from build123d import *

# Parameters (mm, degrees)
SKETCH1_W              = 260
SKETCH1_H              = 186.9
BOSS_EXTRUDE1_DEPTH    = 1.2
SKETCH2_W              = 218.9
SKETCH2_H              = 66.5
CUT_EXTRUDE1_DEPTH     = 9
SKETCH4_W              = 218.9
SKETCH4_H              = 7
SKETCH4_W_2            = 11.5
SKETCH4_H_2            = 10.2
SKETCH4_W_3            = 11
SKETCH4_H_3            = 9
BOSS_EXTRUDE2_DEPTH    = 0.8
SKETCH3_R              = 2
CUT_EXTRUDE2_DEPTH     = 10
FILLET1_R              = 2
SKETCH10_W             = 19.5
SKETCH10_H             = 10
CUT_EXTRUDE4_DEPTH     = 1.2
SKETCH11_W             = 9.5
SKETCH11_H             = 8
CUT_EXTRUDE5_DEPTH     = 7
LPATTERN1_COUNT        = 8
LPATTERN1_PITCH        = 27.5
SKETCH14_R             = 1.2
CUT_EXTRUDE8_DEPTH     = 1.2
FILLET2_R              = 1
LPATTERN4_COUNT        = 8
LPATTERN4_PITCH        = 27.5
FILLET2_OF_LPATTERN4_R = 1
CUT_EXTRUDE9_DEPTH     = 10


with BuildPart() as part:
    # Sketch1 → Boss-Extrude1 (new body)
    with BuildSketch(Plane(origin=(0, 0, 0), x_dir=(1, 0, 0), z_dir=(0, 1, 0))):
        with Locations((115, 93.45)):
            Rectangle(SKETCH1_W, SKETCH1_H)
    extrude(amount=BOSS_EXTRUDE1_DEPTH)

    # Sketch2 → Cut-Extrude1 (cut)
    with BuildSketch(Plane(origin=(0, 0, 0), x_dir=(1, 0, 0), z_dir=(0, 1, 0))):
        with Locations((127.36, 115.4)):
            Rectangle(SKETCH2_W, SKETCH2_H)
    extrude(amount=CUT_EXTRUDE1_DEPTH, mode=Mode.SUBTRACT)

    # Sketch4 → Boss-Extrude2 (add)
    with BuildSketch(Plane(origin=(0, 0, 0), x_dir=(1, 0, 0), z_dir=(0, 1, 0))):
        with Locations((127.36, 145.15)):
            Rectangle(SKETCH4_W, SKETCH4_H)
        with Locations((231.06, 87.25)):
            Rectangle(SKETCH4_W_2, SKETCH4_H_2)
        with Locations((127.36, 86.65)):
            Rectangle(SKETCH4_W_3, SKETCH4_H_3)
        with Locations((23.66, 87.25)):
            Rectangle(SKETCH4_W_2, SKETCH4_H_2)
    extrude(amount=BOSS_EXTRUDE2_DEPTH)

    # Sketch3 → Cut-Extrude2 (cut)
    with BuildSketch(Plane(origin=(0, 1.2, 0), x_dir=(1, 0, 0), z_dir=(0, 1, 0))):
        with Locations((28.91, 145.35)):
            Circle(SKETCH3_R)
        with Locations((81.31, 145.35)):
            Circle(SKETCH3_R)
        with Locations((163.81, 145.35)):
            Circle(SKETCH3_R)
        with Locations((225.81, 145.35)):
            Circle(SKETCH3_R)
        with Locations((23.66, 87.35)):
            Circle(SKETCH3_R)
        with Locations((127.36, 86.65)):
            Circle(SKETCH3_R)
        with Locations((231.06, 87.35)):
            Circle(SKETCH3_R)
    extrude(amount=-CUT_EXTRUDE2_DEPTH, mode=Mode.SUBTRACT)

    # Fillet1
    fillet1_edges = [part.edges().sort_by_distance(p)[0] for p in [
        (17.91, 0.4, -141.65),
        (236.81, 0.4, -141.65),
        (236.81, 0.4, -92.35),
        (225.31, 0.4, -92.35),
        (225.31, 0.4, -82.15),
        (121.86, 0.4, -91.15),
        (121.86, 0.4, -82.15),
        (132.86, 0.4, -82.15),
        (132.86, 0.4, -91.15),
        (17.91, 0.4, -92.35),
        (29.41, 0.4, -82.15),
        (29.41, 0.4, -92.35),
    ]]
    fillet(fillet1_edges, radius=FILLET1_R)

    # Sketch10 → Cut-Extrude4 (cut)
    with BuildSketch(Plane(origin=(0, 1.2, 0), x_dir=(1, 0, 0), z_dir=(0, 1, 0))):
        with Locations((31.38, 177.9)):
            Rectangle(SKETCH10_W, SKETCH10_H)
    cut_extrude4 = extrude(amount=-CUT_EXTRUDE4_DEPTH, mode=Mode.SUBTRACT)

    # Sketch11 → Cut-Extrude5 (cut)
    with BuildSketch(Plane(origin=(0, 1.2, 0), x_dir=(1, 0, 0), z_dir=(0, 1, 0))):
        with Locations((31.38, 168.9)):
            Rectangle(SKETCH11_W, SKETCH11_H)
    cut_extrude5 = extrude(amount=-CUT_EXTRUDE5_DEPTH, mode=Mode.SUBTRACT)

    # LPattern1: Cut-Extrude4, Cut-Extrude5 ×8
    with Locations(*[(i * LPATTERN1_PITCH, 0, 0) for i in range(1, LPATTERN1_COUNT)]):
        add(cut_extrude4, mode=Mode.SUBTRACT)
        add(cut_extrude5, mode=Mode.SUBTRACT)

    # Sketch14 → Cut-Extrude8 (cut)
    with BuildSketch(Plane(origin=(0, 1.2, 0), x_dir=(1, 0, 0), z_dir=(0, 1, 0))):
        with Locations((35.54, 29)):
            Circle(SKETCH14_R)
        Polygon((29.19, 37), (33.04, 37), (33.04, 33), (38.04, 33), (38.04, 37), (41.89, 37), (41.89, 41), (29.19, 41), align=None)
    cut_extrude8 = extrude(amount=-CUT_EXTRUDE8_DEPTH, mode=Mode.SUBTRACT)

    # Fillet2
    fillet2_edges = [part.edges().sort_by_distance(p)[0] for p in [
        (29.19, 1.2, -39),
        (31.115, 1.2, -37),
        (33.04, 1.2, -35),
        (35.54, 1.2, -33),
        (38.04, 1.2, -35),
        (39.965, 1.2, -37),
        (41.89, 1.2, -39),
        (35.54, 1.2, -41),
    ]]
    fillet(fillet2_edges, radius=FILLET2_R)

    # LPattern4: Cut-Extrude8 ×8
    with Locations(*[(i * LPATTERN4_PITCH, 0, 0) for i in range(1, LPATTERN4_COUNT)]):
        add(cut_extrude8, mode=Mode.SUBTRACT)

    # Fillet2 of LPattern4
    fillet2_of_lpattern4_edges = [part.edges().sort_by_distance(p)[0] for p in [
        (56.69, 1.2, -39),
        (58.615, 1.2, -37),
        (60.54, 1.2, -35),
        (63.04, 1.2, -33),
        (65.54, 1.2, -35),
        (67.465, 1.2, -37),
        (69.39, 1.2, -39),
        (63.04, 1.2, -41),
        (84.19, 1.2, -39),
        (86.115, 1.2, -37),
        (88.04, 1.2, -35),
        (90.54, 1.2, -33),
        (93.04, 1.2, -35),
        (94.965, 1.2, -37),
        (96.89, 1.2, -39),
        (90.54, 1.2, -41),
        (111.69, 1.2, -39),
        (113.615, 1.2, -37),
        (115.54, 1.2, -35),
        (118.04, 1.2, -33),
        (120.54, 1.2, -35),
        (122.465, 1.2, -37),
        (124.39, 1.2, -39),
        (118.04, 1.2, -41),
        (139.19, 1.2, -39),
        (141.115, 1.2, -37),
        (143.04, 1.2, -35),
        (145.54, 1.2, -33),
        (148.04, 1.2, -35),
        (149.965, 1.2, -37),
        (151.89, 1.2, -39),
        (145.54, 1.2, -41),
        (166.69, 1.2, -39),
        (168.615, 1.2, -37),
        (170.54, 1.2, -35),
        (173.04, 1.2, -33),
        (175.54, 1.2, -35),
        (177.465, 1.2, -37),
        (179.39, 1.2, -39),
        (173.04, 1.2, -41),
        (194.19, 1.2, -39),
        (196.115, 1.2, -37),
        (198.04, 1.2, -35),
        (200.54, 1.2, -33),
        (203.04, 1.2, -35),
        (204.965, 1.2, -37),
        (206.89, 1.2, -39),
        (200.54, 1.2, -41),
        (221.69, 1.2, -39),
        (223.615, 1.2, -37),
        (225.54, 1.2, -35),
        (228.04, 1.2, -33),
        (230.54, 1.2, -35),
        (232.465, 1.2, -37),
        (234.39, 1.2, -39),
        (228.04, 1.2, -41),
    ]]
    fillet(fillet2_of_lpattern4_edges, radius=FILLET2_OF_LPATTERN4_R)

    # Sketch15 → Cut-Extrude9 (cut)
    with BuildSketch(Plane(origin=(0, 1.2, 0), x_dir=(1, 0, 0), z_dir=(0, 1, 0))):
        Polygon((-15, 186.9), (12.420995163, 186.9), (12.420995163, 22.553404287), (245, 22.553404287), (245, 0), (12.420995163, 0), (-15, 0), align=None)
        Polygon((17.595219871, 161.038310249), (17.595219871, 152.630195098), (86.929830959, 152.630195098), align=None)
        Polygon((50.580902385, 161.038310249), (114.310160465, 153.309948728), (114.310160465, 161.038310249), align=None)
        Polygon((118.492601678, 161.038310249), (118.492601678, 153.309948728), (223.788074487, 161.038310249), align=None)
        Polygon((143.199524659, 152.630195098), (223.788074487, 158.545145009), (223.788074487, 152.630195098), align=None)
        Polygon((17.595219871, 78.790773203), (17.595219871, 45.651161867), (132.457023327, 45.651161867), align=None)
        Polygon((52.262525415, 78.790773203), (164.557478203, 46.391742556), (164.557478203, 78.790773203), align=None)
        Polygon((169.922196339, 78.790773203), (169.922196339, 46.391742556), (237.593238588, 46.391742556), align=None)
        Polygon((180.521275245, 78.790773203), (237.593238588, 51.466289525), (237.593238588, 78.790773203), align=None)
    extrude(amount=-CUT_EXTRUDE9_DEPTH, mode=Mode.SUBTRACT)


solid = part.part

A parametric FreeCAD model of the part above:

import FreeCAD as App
import Part
import Sketcher

V = App.Vector
Q = App.Units.Quantity


def edges_at(feature, points):
    """Names of the edges that pass closest to the given points."""
    edges = feature.Shape.Edges
    near = lambda p: min(range(len(edges)), key=lambda i: edges[i].distToShape(Part.Vertex(*p))[0])
    return sorted({f"Edge{near(p) + 1}" for p in points})

doc = App.newDocument("Part")
body = doc.addObject("PartDesign::Body", "Body")

# Sketch on XZ plane
sketch1 = body.newObject("Sketcher::SketchObject", "Sketch")
sketch1.AttachmentSupport = (doc.getObject("XZ_Plane"), [""])
sketch1.MapMode = "FlatFace"
sketch1.addGeometry(Part.LineSegment(V(-15, -186.9, 0), V(-15, 0, 0)), False)
sketch1.addGeometry(Part.LineSegment(V(-15, 0, 0), V(245, 0, 0)), False)
sketch1.addGeometry(Part.LineSegment(V(245, 0, 0), V(245, -186.9, 0)), False)
sketch1.addGeometry(Part.LineSegment(V(245, -186.9, 0), V(-15, -186.9, 0)), False)
sketch1.addConstraint(Sketcher.Constraint("Coincident", 0, 2, 1, 1))
sketch1.addConstraint(Sketcher.Constraint("Coincident", 1, 2, 2, 1))
sketch1.addConstraint(Sketcher.Constraint("Coincident", 2, 2, 3, 1))
sketch1.addConstraint(Sketcher.Constraint("Coincident", 3, 2, 0, 1))
sketch1.addConstraint(Sketcher.Constraint("Vertical", 0))
sketch1.addConstraint(Sketcher.Constraint("Horizontal", 1))
sketch1.addConstraint(Sketcher.Constraint("Vertical", 2))
sketch1.addConstraint(Sketcher.Constraint("Horizontal", 3))
sketch1.addConstraint(Sketcher.Constraint("PointOnObject", 0, 2, -1))
sketch1.addConstraint(Sketcher.Constraint("DistanceX", 1, 1, 1, 2, Q("260 mm")))
sketch1.addConstraint(Sketcher.Constraint("DistanceY", 0, 1, 0, 2, Q("186.9 mm")))
sketch1.addConstraint(Sketcher.Constraint("DistanceX", 0, 2, -1, 1, Q("15 mm")))
pad1 = body.newObject("PartDesign::Pad", "Pad")
pad1.Profile = sketch1
pad1.Length = 1.2
pad1.Reversed = True

# Sketch on XZ plane
sketch2 = body.newObject("Sketcher::SketchObject", "Sketch001")
sketch2.AttachmentSupport = (doc.getObject("XZ_Plane"), [""])
sketch2.MapMode = "FlatFace"
sketch2.addGeometry(Part.LineSegment(V(17.91, -148.65, 0), V(17.91, -82.15, 0)), False)
sketch2.addGeometry(Part.LineSegment(V(17.91, -82.15, 0), V(236.81, -82.15, 0)), False)
sketch2.addGeometry(Part.LineSegment(V(236.81, -82.15, 0), V(236.81, -148.65, 0)), False)
sketch2.addGeometry(Part.LineSegment(V(236.81, -148.65, 0), V(17.91, -148.65, 0)), False)
sketch2.addConstraint(Sketcher.Constraint("Coincident", 0, 2, 1, 1))
sketch2.addConstraint(Sketcher.Constraint("Coincident", 1, 2, 2, 1))
sketch2.addConstraint(Sketcher.Constraint("Coincident", 2, 2, 3, 1))
sketch2.addConstraint(Sketcher.Constraint("Coincident", 3, 2, 0, 1))
sketch2.addConstraint(Sketcher.Constraint("Vertical", 0))
sketch2.addConstraint(Sketcher.Constraint("Horizontal", 1))
sketch2.addConstraint(Sketcher.Constraint("Vertical", 2))
sketch2.addConstraint(Sketcher.Constraint("Horizontal", 3))
sketch2.addConstraint(Sketcher.Constraint("DistanceX", 1, 1, 1, 2, Q("218.9 mm")))
sketch2.addConstraint(Sketcher.Constraint("DistanceY", 0, 1, 0, 2, Q("66.5 mm")))
sketch2.addConstraint(Sketcher.Constraint("DistanceX", -1, 1, 0, 2, Q("17.91 mm")))
sketch2.addConstraint(Sketcher.Constraint("DistanceY", 0, 2, -1, 1, Q("82.15 mm")))
pocket1 = body.newObject("PartDesign::Pocket", "Pocket")
pocket1.Profile = sketch2
pocket1.Length = 9

# Sketch on XZ plane
sketch3 = body.newObject("Sketcher::SketchObject", "Sketch002")
sketch3.AttachmentSupport = (doc.getObject("XZ_Plane"), [""])
sketch3.MapMode = "FlatFace"
sketch3.addGeometry(Part.LineSegment(V(17.91, -148.65, 0), V(17.91, -141.65, 0)), False)
sketch3.addGeometry(Part.LineSegment(V(17.91, -141.65, 0), V(236.81, -141.65, 0)), False)
sketch3.addGeometry(Part.LineSegment(V(236.81, -141.65, 0), V(236.81, -148.65, 0)), False)
sketch3.addGeometry(Part.LineSegment(V(236.81, -148.65, 0), V(17.91, -148.65, 0)), False)
sketch3.addGeometry(Part.LineSegment(V(225.31, -92.35, 0), V(225.31, -82.15, 0)), False)
sketch3.addGeometry(Part.LineSegment(V(225.31, -82.15, 0), V(236.81, -82.15, 0)), False)
sketch3.addGeometry(Part.LineSegment(V(236.81, -82.15, 0), V(236.81, -92.35, 0)), False)
sketch3.addGeometry(Part.LineSegment(V(236.81, -92.35, 0), V(225.31, -92.35, 0)), False)
sketch3.addGeometry(Part.LineSegment(V(121.86, -91.15, 0), V(121.86, -82.15, 0)), False)
sketch3.addGeometry(Part.LineSegment(V(121.86, -82.15, 0), V(132.86, -82.15, 0)), False)
sketch3.addGeometry(Part.LineSegment(V(132.86, -82.15, 0), V(132.86, -91.15, 0)), False)
sketch3.addGeometry(Part.LineSegment(V(132.86, -91.15, 0), V(121.86, -91.15, 0)), False)
sketch3.addGeometry(Part.LineSegment(V(17.91, -92.35, 0), V(17.91, -82.15, 0)), False)
sketch3.addGeometry(Part.LineSegment(V(17.91, -82.15, 0), V(29.41, -82.15, 0)), False)
sketch3.addGeometry(Part.LineSegment(V(29.41, -82.15, 0), V(29.41, -92.35, 0)), False)
sketch3.addGeometry(Part.LineSegment(V(29.41, -92.35, 0), V(17.91, -92.35, 0)), False)
sketch3.addConstraint(Sketcher.Constraint("Coincident", 0, 2, 1, 1))
sketch3.addConstraint(Sketcher.Constraint("Coincident", 1, 2, 2, 1))
sketch3.addConstraint(Sketcher.Constraint("Coincident", 2, 2, 3, 1))
sketch3.addConstraint(Sketcher.Constraint("Coincident", 3, 2, 0, 1))
sketch3.addConstraint(Sketcher.Constraint("Coincident", 4, 2, 5, 1))
sketch3.addConstraint(Sketcher.Constraint("Coincident", 5, 2, 6, 1))
sketch3.addConstraint(Sketcher.Constraint("Coincident", 6, 2, 7, 1))
sketch3.addConstraint(Sketcher.Constraint("Coincident", 7, 2, 4, 1))
sketch3.addConstraint(Sketcher.Constraint("Coincident", 8, 2, 9, 1))
sketch3.addConstraint(Sketcher.Constraint("Coincident", 9, 2, 10, 1))
sketch3.addConstraint(Sketcher.Constraint("Coincident", 10, 2, 11, 1))
sketch3.addConstraint(Sketcher.Constraint("Coincident", 11, 2, 8, 1))
sketch3.addConstraint(Sketcher.Constraint("Coincident", 12, 2, 13, 1))
sketch3.addConstraint(Sketcher.Constraint("Coincident", 13, 2, 14, 1))
sketch3.addConstraint(Sketcher.Constraint("Coincident", 14, 2, 15, 1))
sketch3.addConstraint(Sketcher.Constraint("Coincident", 15, 2, 12, 1))
sketch3.addConstraint(Sketcher.Constraint("Vertical", 0))
sketch3.addConstraint(Sketcher.Constraint("Horizontal", 1))
sketch3.addConstraint(Sketcher.Constraint("Vertical", 2))
sketch3.addConstraint(Sketcher.Constraint("Horizontal", 3))
sketch3.addConstraint(Sketcher.Constraint("Vertical", 4))
sketch3.addConstraint(Sketcher.Constraint("Horizontal", 5))
sketch3.addConstraint(Sketcher.Constraint("Vertical", 6))
sketch3.addConstraint(Sketcher.Constraint("Horizontal", 7))
sketch3.addConstraint(Sketcher.Constraint("Vertical", 8))
sketch3.addConstraint(Sketcher.Constraint("Horizontal", 9))
sketch3.addConstraint(Sketcher.Constraint("Vertical", 10))
sketch3.addConstraint(Sketcher.Constraint("Horizontal", 11))
sketch3.addConstraint(Sketcher.Constraint("Vertical", 12))
sketch3.addConstraint(Sketcher.Constraint("Horizontal", 13))
sketch3.addConstraint(Sketcher.Constraint("Vertical", 14))
sketch3.addConstraint(Sketcher.Constraint("Horizontal", 15))
sketch3.addConstraint(Sketcher.Constraint("Horizontal", 5, 2, 8, 2))
sketch3.addConstraint(Sketcher.Constraint("Horizontal", 9, 2, 12, 2))
sketch3.addConstraint(Sketcher.Constraint("Horizontal", 7, 2, 14, 2))
sketch3.addConstraint(Sketcher.Constraint("Vertical", 2, 2, 5, 2))
sketch3.addConstraint(Sketcher.Constraint("Vertical", 3, 2, 12, 2))
sketch3.addConstraint(Sketcher.Constraint("Equal", 7, 13))
sketch3.addConstraint(Sketcher.Constraint("DistanceX", 9, 1, 9, 2, Q("11 mm")))
sketch3.addConstraint(Sketcher.Constraint("DistanceY", 0, 1, 0, 2, Q("7 mm")))
sketch3.addConstraint(Sketcher.Constraint("DistanceY", 8, 1, 8, 2, Q("9 mm")))
sketch3.addConstraint(Sketcher.Constraint("DistanceX", 1, 1, 1, 2, Q("218.9 mm")))
sketch3.addConstraint(Sketcher.Constraint("DistanceX", 5, 1, 5, 2, Q("11.5 mm")))
sketch3.addConstraint(Sketcher.Constraint("DistanceY", 4, 1, 4, 2, Q("10.2 mm")))
sketch3.addConstraint(Sketcher.Constraint("DistanceY", 1, 2, 4, 2, Q("59.5 mm")))
sketch3.addConstraint(Sketcher.Constraint("DistanceX", -1, 1, 0, 2, Q("17.91 mm")))
sketch3.addConstraint(Sketcher.Constraint("DistanceY", 0, 2, -1, 1, Q("141.65 mm")))
sketch3.addConstraint(Sketcher.Constraint("DistanceX", -1, 1, 8, 2, Q("121.86 mm")))
pad2 = body.newObject("PartDesign::Pad", "Pad001")
pad2.Profile = sketch3
pad2.Length = 0.8
pad2.Reversed = True

# Sketch on XZ plane
sketch4 = body.newObject("Sketcher::SketchObject", "Sketch003")
sketch4.AttachmentSupport = (doc.getObject("XZ_Plane"), [""])
sketch4.MapMode = "FlatFace"
sketch4.AttachmentOffset = App.Placement(V(0, 0, -1.2), App.Rotation())
sketch4.addGeometry(Part.Circle(V(28.91, -145.35, 0), V(0, 0, 1), 2), False)
sketch4.addGeometry(Part.Circle(V(81.31, -145.35, 0), V(0, 0, 1), 2), False)
sketch4.addGeometry(Part.Circle(V(163.81, -145.35, 0), V(0, 0, 1), 2), False)
sketch4.addGeometry(Part.Circle(V(225.81, -145.35, 0), V(0, 0, 1), 2), False)
sketch4.addGeometry(Part.Circle(V(23.66, -87.35, 0), V(0, 0, 1), 2), False)
sketch4.addGeometry(Part.Circle(V(127.36, -86.65, 0), V(0, 0, 1), 2), False)
sketch4.addGeometry(Part.Circle(V(231.06, -87.35, 0), V(0, 0, 1), 2), False)
sketch4.addConstraint(Sketcher.Constraint("Equal", 0, 1))
sketch4.addConstraint(Sketcher.Constraint("Equal", 1, 2))
sketch4.addConstraint(Sketcher.Constraint("Equal", 2, 3))
sketch4.addConstraint(Sketcher.Constraint("Equal", 3, 4))
sketch4.addConstraint(Sketcher.Constraint("Equal", 4, 5))
sketch4.addConstraint(Sketcher.Constraint("Equal", 5, 6))
sketch4.addConstraint(Sketcher.Constraint("Horizontal", 0, 3, 1, 3))
sketch4.addConstraint(Sketcher.Constraint("Horizontal", 1, 3, 2, 3))
sketch4.addConstraint(Sketcher.Constraint("Horizontal", 2, 3, 3, 3))
sketch4.addConstraint(Sketcher.Constraint("Horizontal", 4, 3, 6, 3))
sketch4.addConstraint(Sketcher.Constraint("Diameter", 0, Q("4 mm")))
sketch4.addConstraint(Sketcher.Constraint("DistanceX", 2, 3, 3, 3, Q("62 mm")))
sketch4.addConstraint(Sketcher.Constraint("DistanceY", 0, 3, 4, 3, Q("58 mm")))
sketch4.addConstraint(Sketcher.Constraint("DistanceX", 0, 3, 1, 3, Q("52.4 mm")))
sketch4.addConstraint(Sketcher.Constraint("DistanceX", 1, 3, 2, 3, Q("82.5 mm")))
sketch4.addConstraint(Sketcher.Constraint("DistanceY", 2, 3, 5, 3, Q("58.7 mm")))
sketch4.addConstraint(Sketcher.Constraint("DistanceX", 4, 3, 5, 3, Q("103.7 mm")))
sketch4.addConstraint(Sketcher.Constraint("DistanceX", 5, 3, 6, 3, Q("103.7 mm")))
sketch4.addConstraint(Sketcher.Constraint("DistanceX", -1, 1, 0, 3, Q("28.91 mm")))
sketch4.addConstraint(Sketcher.Constraint("DistanceY", 0, 3, -1, 1, Q("145.35 mm")))
sketch4.addConstraint(Sketcher.Constraint("DistanceX", -1, 1, 4, 3, Q("23.66 mm")))
pocket2 = body.newObject("PartDesign::Pocket", "Pocket001")
pocket2.Profile = sketch4
pocket2.Length = 10
pocket2.Reversed = True
doc.recompute()

fillet = body.newObject("PartDesign::Fillet", "Fillet")
fillet.Base = (pocket2, edges_at(pocket2, [
    (17.91, 0.4, -141.65),
    (236.81, 0.4, -141.65),
    (236.81, 0.4, -92.35),
    (225.31, 0.4, -92.35),
    (225.31, 0.4, -82.15),
    (121.86, 0.4, -91.15),
    (121.86, 0.4, -82.15),
    (132.86, 0.4, -82.15),
    (132.86, 0.4, -91.15),
    (17.91, 0.4, -92.35),
    (29.41, 0.4, -82.15),
    (29.41, 0.4, -92.35),
]))
fillet.Radius = 2

# Sketch on XZ plane
sketch5 = body.newObject("Sketcher::SketchObject", "Sketch004")
sketch5.AttachmentSupport = (doc.getObject("XZ_Plane"), [""])
sketch5.MapMode = "FlatFace"
sketch5.AttachmentOffset = App.Placement(V(0, 0, -1.2), App.Rotation())
sketch5.addGeometry(Part.LineSegment(V(21.63, -182.9, 0), V(21.63, -172.9, 0)), False)
sketch5.addGeometry(Part.LineSegment(V(21.63, -172.9, 0), V(41.13, -172.9, 0)), False)
sketch5.addGeometry(Part.LineSegment(V(41.13, -172.9, 0), V(41.13, -182.9, 0)), False)
sketch5.addGeometry(Part.LineSegment(V(41.13, -182.9, 0), V(21.63, -182.9, 0)), False)
sketch5.addConstraint(Sketcher.Constraint("Coincident", 0, 2, 1, 1))
sketch5.addConstraint(Sketcher.Constraint("Coincident", 1, 2, 2, 1))
sketch5.addConstraint(Sketcher.Constraint("Coincident", 2, 2, 3, 1))
sketch5.addConstraint(Sketcher.Constraint("Coincident", 3, 2, 0, 1))
sketch5.addConstraint(Sketcher.Constraint("Vertical", 0))
sketch5.addConstraint(Sketcher.Constraint("Horizontal", 1))
sketch5.addConstraint(Sketcher.Constraint("Vertical", 2))
sketch5.addConstraint(Sketcher.Constraint("Horizontal", 3))
sketch5.addConstraint(Sketcher.Constraint("DistanceY", 0, 1, 0, 2, Q("10 mm")))
sketch5.addConstraint(Sketcher.Constraint("DistanceX", 1, 1, 1, 2, Q("19.5 mm")))
sketch5.addConstraint(Sketcher.Constraint("DistanceY", 0, 2, -1, 1, Q("172.9 mm")))
sketch5.addConstraint(Sketcher.Constraint("DistanceX", -1, 1, 0, 2, Q("21.63 mm")))
pocket3 = body.newObject("PartDesign::Pocket", "Pocket002")
pocket3.Profile = sketch5
pocket3.Length = 1.2
pocket3.Reversed = True

# Sketch on XZ plane
sketch6 = body.newObject("Sketcher::SketchObject", "Sketch005")
sketch6.AttachmentSupport = (doc.getObject("XZ_Plane"), [""])
sketch6.MapMode = "FlatFace"
sketch6.AttachmentOffset = App.Placement(V(0, 0, -1.2), App.Rotation())
sketch6.addGeometry(Part.LineSegment(V(26.63, -172.9, 0), V(26.63, -164.9, 0)), False)
sketch6.addGeometry(Part.LineSegment(V(26.63, -164.9, 0), V(36.13, -164.9, 0)), False)
sketch6.addGeometry(Part.LineSegment(V(36.13, -164.9, 0), V(36.13, -172.9, 0)), False)
sketch6.addGeometry(Part.LineSegment(V(36.13, -172.9, 0), V(26.63, -172.9, 0)), False)
sketch6.addConstraint(Sketcher.Constraint("Coincident", 0, 2, 1, 1))
sketch6.addConstraint(Sketcher.Constraint("Coincident", 1, 2, 2, 1))
sketch6.addConstraint(Sketcher.Constraint("Coincident", 2, 2, 3, 1))
sketch6.addConstraint(Sketcher.Constraint("Coincident", 3, 2, 0, 1))
sketch6.addConstraint(Sketcher.Constraint("Vertical", 0))
sketch6.addConstraint(Sketcher.Constraint("Horizontal", 1))
sketch6.addConstraint(Sketcher.Constraint("Vertical", 2))
sketch6.addConstraint(Sketcher.Constraint("Horizontal", 3))
sketch6.addConstraint(Sketcher.Constraint("DistanceY", 0, 1, 0, 2, Q("8 mm")))
sketch6.addConstraint(Sketcher.Constraint("DistanceX", 1, 1, 1, 2, Q("9.5 mm")))
sketch6.addConstraint(Sketcher.Constraint("DistanceY", 0, 2, -1, 1, Q("164.9 mm")))
sketch6.addConstraint(Sketcher.Constraint("DistanceX", -1, 1, 0, 2, Q("26.63 mm")))
pocket4 = body.newObject("PartDesign::Pocket", "Pocket003")
pocket4.Profile = sketch6
pocket4.Length = 7
pocket4.Reversed = True
doc.recompute()

linearpattern = body.newObject("PartDesign::LinearPattern", "LinearPattern")
linearpattern.Originals = [pocket3, pocket4]
linearpattern.Direction = (doc.getObject("X_Axis"), [""])
linearpattern.Mode = "offset"
linearpattern.Offset = 27.5
linearpattern.Occurrences = 8
body.Tip = linearpattern

# Sketch on XZ plane
sketch7 = body.newObject("Sketcher::SketchObject", "Sketch006")
sketch7.AttachmentSupport = (doc.getObject("XZ_Plane"), [""])
sketch7.MapMode = "FlatFace"
sketch7.AttachmentOffset = App.Placement(V(0, 0, -1.2), App.Rotation())
sketch7.addGeometry(Part.Circle(V(35.54, -29, 0), V(0, 0, 1), 1.2), False)
sketch7.addGeometry(Part.LineSegment(V(29.19, -37, 0), V(33.04, -37, 0)), False)
sketch7.addGeometry(Part.LineSegment(V(33.04, -37, 0), V(33.04, -33, 0)), False)
sketch7.addGeometry(Part.LineSegment(V(33.04, -33, 0), V(38.04, -33, 0)), False)
sketch7.addGeometry(Part.LineSegment(V(38.04, -33, 0), V(38.04, -37, 0)), False)
sketch7.addGeometry(Part.LineSegment(V(38.04, -37, 0), V(41.89, -37, 0)), False)
sketch7.addGeometry(Part.LineSegment(V(41.89, -37, 0), V(41.89, -41, 0)), False)
sketch7.addGeometry(Part.LineSegment(V(41.89, -41, 0), V(29.19, -41, 0)), False)
sketch7.addGeometry(Part.LineSegment(V(29.19, -41, 0), V(29.19, -37, 0)), False)
sketch7.addConstraint(Sketcher.Constraint("Coincident", 1, 2, 2, 1))
sketch7.addConstraint(Sketcher.Constraint("Coincident", 2, 2, 3, 1))
sketch7.addConstraint(Sketcher.Constraint("Coincident", 3, 2, 4, 1))
sketch7.addConstraint(Sketcher.Constraint("Coincident", 4, 2, 5, 1))
sketch7.addConstraint(Sketcher.Constraint("Coincident", 5, 2, 6, 1))
sketch7.addConstraint(Sketcher.Constraint("Coincident", 6, 2, 7, 1))
sketch7.addConstraint(Sketcher.Constraint("Coincident", 7, 2, 8, 1))
sketch7.addConstraint(Sketcher.Constraint("Coincident", 8, 2, 1, 1))
sketch7.addConstraint(Sketcher.Constraint("Horizontal", 1))
sketch7.addConstraint(Sketcher.Constraint("Vertical", 2))
sketch7.addConstraint(Sketcher.Constraint("Horizontal", 3))
sketch7.addConstraint(Sketcher.Constraint("Vertical", 4))
sketch7.addConstraint(Sketcher.Constraint("Horizontal", 5))
sketch7.addConstraint(Sketcher.Constraint("Vertical", 6))
sketch7.addConstraint(Sketcher.Constraint("Horizontal", 7))
sketch7.addConstraint(Sketcher.Constraint("Vertical", 8))
sketch7.addConstraint(Sketcher.Constraint("Horizontal", 1, 2, 4, 2))
sketch7.addConstraint(Sketcher.Constraint("Equal", 1, 5))
sketch7.addConstraint(Sketcher.Constraint("Equal", 4, 6))
sketch7.addConstraint(Sketcher.Constraint("Diameter", 0, Q("2.4 mm")))
sketch7.addConstraint(Sketcher.Constraint("DistanceX", 3, 1, 3, 2, Q("5 mm")))
sketch7.addConstraint(Sketcher.Constraint("DistanceY", 2, 1, 2, 2, Q("4 mm")))
sketch7.addConstraint(Sketcher.Constraint("DistanceX", 7, 2, 7, 1, Q("12.7 mm")))
sketch7.addConstraint(Sketcher.Constraint("DistanceY", 0, 3, -1, 1, Q("29 mm")))
sketch7.addConstraint(Sketcher.Constraint("DistanceY", 1, 2, -1, 1, Q("37 mm")))
sketch7.addConstraint(Sketcher.Constraint("DistanceX", 1, 2, 0, 3, Q("2.5 mm")))
sketch7.addConstraint(Sketcher.Constraint("DistanceX", -1, 1, 0, 3, Q("35.54 mm")))
pocket5 = body.newObject("PartDesign::Pocket", "Pocket004")
pocket5.Profile = sketch7
pocket5.Length = 1.2
pocket5.Reversed = True
doc.recompute()

fillet2 = body.newObject("PartDesign::Fillet", "Fillet001")
fillet2.Base = (pocket5, edges_at(pocket5, [
    (29.19, 1.2, -39),
    (31.115, 1.2, -37),
    (33.04, 1.2, -35),
    (35.54, 1.2, -33),
    (38.04, 1.2, -35),
    (39.965, 1.2, -37),
    (41.89, 1.2, -39),
    (35.54, 1.2, -41),
]))
fillet2.Radius = 1
doc.recompute()

linearpattern2 = body.newObject("PartDesign::LinearPattern", "LinearPattern001")
linearpattern2.Originals = [pocket5]
linearpattern2.Direction = (doc.getObject("X_Axis"), [""])
linearpattern2.Mode = "offset"
linearpattern2.Offset = 27.5
linearpattern2.Occurrences = 8
body.Tip = linearpattern2
doc.recompute()

fillet3 = body.newObject("PartDesign::Fillet", "Fillet002")
fillet3.Base = (linearpattern2, edges_at(linearpattern2, [
    (56.69, 1.2, -39),
    (58.615, 1.2, -37),
    (60.54, 1.2, -35),
    (63.04, 1.2, -33),
    (65.54, 1.2, -35),
    (67.465, 1.2, -37),
    (69.39, 1.2, -39),
    (63.04, 1.2, -41),
    (84.19, 1.2, -39),
    (86.115, 1.2, -37),
    (88.04, 1.2, -35),
    (90.54, 1.2, -33),
    (93.04, 1.2, -35),
    (94.965, 1.2, -37),
    (96.89, 1.2, -39),
    (90.54, 1.2, -41),
    (111.69, 1.2, -39),
    (113.615, 1.2, -37),
    (115.54, 1.2, -35),
    (118.04, 1.2, -33),
    (120.54, 1.2, -35),
    (122.465, 1.2, -37),
    (124.39, 1.2, -39),
    (118.04, 1.2, -41),
    (139.19, 1.2, -39),
    (141.115, 1.2, -37),
    (143.04, 1.2, -35),
    (145.54, 1.2, -33),
    (148.04, 1.2, -35),
    (149.965, 1.2, -37),
    (151.89, 1.2, -39),
    (145.54, 1.2, -41),
    (166.69, 1.2, -39),
    (168.615, 1.2, -37),
    (170.54, 1.2, -35),
    (173.04, 1.2, -33),
    (175.54, 1.2, -35),
    (177.465, 1.2, -37),
    (179.39, 1.2, -39),
    (173.04, 1.2, -41),
    (194.19, 1.2, -39),
    (196.115, 1.2, -37),
    (198.04, 1.2, -35),
    (200.54, 1.2, -33),
    (203.04, 1.2, -35),
    (204.965, 1.2, -37),
    (206.89, 1.2, -39),
    (200.54, 1.2, -41),
    (221.69, 1.2, -39),
    (223.615, 1.2, -37),
    (225.54, 1.2, -35),
    (228.04, 1.2, -33),
    (230.54, 1.2, -35),
    (232.465, 1.2, -37),
    (234.39, 1.2, -39),
    (228.04, 1.2, -41),
]))
fillet3.Radius = 1

# Sketch on XZ plane
sketch8 = body.newObject("Sketcher::SketchObject", "Sketch007")
sketch8.AttachmentSupport = (doc.getObject("XZ_Plane"), [""])
sketch8.MapMode = "FlatFace"
sketch8.AttachmentOffset = App.Placement(V(0, 0, -1.2), App.Rotation())
sketch8.addGeometry(Part.LineSegment(V(12.420995, -186.9, 0), V(-15, -186.9, 0)), False)
sketch8.addGeometry(Part.LineSegment(V(-15, -186.9, 0), V(-15, 0, 0)), False)
sketch8.addGeometry(Part.LineSegment(V(-15, 0, 0), V(245, 0, 0)), False)
sketch8.addGeometry(Part.LineSegment(V(245, 0, 0), V(245, -22.553404, 0)), False)
sketch8.addGeometry(Part.LineSegment(V(245, -22.553404, 0), V(12.420995, -22.553404, 0)), False)
sketch8.addGeometry(Part.LineSegment(V(12.420995, -22.553404, 0), V(12.420995, -186.9, 0)), False)
sketch8.addGeometry(Part.LineSegment(V(17.59522, -161.03831, 0), V(17.59522, -152.630195, 0)), False)
sketch8.addGeometry(Part.LineSegment(V(17.59522, -152.630195, 0), V(86.929831, -152.630195, 0)), False)
sketch8.addGeometry(Part.LineSegment(V(86.929831, -152.630195, 0), V(17.59522, -161.03831, 0)), False)
sketch8.addGeometry(Part.LineSegment(V(50.580902, -161.03831, 0), V(114.31016, -153.309949, 0)), False)
sketch8.addGeometry(Part.LineSegment(V(114.31016, -153.309949, 0), V(114.31016, -161.03831, 0)), False)
sketch8.addGeometry(Part.LineSegment(V(114.31016, -161.03831, 0), V(50.580902, -161.03831, 0)), False)
sketch8.addGeometry(Part.LineSegment(V(118.492602, -161.03831, 0), V(118.492602, -153.309949, 0)), False)
sketch8.addGeometry(Part.LineSegment(V(118.492602, -153.309949, 0), V(223.788074, -161.03831, 0)), False)
sketch8.addGeometry(Part.LineSegment(V(223.788074, -161.03831, 0), V(118.492602, -161.03831, 0)), False)
sketch8.addGeometry(Part.LineSegment(V(223.788074, -158.545145, 0), V(143.199525, -152.630195, 0)), False)
sketch8.addGeometry(Part.LineSegment(V(143.199525, -152.630195, 0), V(223.788074, -152.630195, 0)), False)
sketch8.addGeometry(Part.LineSegment(V(223.788074, -152.630195, 0), V(223.788074, -158.545145, 0)), False)
sketch8.addGeometry(Part.LineSegment(V(17.59522, -78.790773, 0), V(17.59522, -45.651162, 0)), False)
sketch8.addGeometry(Part.LineSegment(V(17.59522, -45.651162, 0), V(132.457023, -45.651162, 0)), False)
sketch8.addGeometry(Part.LineSegment(V(132.457023, -45.651162, 0), V(17.59522, -78.790773, 0)), False)
sketch8.addGeometry(Part.LineSegment(V(52.262525, -78.790773, 0), V(164.557478, -46.391743, 0)), False)
sketch8.addGeometry(Part.LineSegment(V(164.557478, -46.391743, 0), V(164.557478, -78.790773, 0)), False)
sketch8.addGeometry(Part.LineSegment(V(164.557478, -78.790773, 0), V(52.262525, -78.790773, 0)), False)
sketch8.addGeometry(Part.LineSegment(V(169.922196, -78.790773, 0), V(169.922196, -46.391743, 0)), False)
sketch8.addGeometry(Part.LineSegment(V(169.922196, -46.391743, 0), V(237.593239, -46.391743, 0)), False)
sketch8.addGeometry(Part.LineSegment(V(237.593239, -46.391743, 0), V(169.922196, -78.790773, 0)), False)
sketch8.addGeometry(Part.LineSegment(V(180.521275, -78.790773, 0), V(237.593239, -51.46629, 0)), False)
sketch8.addGeometry(Part.LineSegment(V(237.593239, -51.46629, 0), V(237.593239, -78.790773, 0)), False)
sketch8.addGeometry(Part.LineSegment(V(237.593239, -78.790773, 0), V(180.521275, -78.790773, 0)), False)
sketch8.addConstraint(Sketcher.Constraint("Coincident", 0, 2, 1, 1))
sketch8.addConstraint(Sketcher.Constraint("Coincident", 1, 2, 2, 1))
sketch8.addConstraint(Sketcher.Constraint("Coincident", 2, 2, 3, 1))
sketch8.addConstraint(Sketcher.Constraint("Coincident", 3, 2, 4, 1))
sketch8.addConstraint(Sketcher.Constraint("Coincident", 4, 2, 5, 1))
sketch8.addConstraint(Sketcher.Constraint("Coincident", 5, 2, 0, 1))
sketch8.addConstraint(Sketcher.Constraint("Coincident", 6, 2, 7, 1))
sketch8.addConstraint(Sketcher.Constraint("Coincident", 7, 2, 8, 1))
sketch8.addConstraint(Sketcher.Constraint("Coincident", 8, 2, 6, 1))
sketch8.addConstraint(Sketcher.Constraint("Coincident", 9, 2, 10, 1))
sketch8.addConstraint(Sketcher.Constraint("Coincident", 10, 2, 11, 1))
sketch8.addConstraint(Sketcher.Constraint("Coincident", 11, 2, 9, 1))
sketch8.addConstraint(Sketcher.Constraint("Coincident", 12, 2, 13, 1))
sketch8.addConstraint(Sketcher.Constraint("Coincident", 13, 2, 14, 1))
sketch8.addConstraint(Sketcher.Constraint("Coincident", 14, 2, 12, 1))
sketch8.addConstraint(Sketcher.Constraint("Coincident", 15, 2, 16, 1))
sketch8.addConstraint(Sketcher.Constraint("Coincident", 16, 2, 17, 1))
sketch8.addConstraint(Sketcher.Constraint("Coincident", 17, 2, 15, 1))
sketch8.addConstraint(Sketcher.Constraint("Coincident", 18, 2, 19, 1))
sketch8.addConstraint(Sketcher.Constraint("Coincident", 19, 2, 20, 1))
sketch8.addConstraint(Sketcher.Constraint("Coincident", 20, 2, 18, 1))
sketch8.addConstraint(Sketcher.Constraint("Coincident", 21, 2, 22, 1))
sketch8.addConstraint(Sketcher.Constraint("Coincident", 22, 2, 23, 1))
sketch8.addConstraint(Sketcher.Constraint("Coincident", 23, 2, 21, 1))
sketch8.addConstraint(Sketcher.Constraint("Coincident", 24, 2, 25, 1))
sketch8.addConstraint(Sketcher.Constraint("Coincident", 25, 2, 26, 1))
sketch8.addConstraint(Sketcher.Constraint("Coincident", 26, 2, 24, 1))
sketch8.addConstraint(Sketcher.Constraint("Coincident", 27, 2, 28, 1))
sketch8.addConstraint(Sketcher.Constraint("Coincident", 28, 2, 29, 1))
sketch8.addConstraint(Sketcher.Constraint("Coincident", 29, 2, 27, 1))
sketch8.addConstraint(Sketcher.Constraint("Horizontal", 0))
sketch8.addConstraint(Sketcher.Constraint("Vertical", 1))
sketch8.addConstraint(Sketcher.Constraint("Horizontal", 2))
sketch8.addConstraint(Sketcher.Constraint("Vertical", 3))
sketch8.addConstraint(Sketcher.Constraint("Horizontal", 4))
sketch8.addConstraint(Sketcher.Constraint("Vertical", 5))
sketch8.addConstraint(Sketcher.Constraint("Vertical", 6))
sketch8.addConstraint(Sketcher.Constraint("Horizontal", 7))
sketch8.addConstraint(Sketcher.Constraint("Vertical", 10))
sketch8.addConstraint(Sketcher.Constraint("Horizontal", 11))
sketch8.addConstraint(Sketcher.Constraint("Vertical", 12))
sketch8.addConstraint(Sketcher.Constraint("Horizontal", 14))
sketch8.addConstraint(Sketcher.Constraint("Horizontal", 16))
sketch8.addConstraint(Sketcher.Constraint("Vertical", 17))
sketch8.addConstraint(Sketcher.Constraint("Vertical", 18))
sketch8.addConstraint(Sketcher.Constraint("Horizontal", 19))
sketch8.addConstraint(Sketcher.Constraint("Vertical", 22))
sketch8.addConstraint(Sketcher.Constraint("Horizontal", 23))
sketch8.addConstraint(Sketcher.Constraint("Vertical", 24))
sketch8.addConstraint(Sketcher.Constraint("Horizontal", 25))
sketch8.addConstraint(Sketcher.Constraint("Vertical", 28))
sketch8.addConstraint(Sketcher.Constraint("Horizontal", 29))
sketch8.addConstraint(Sketcher.Constraint("PointOnObject", 1, 2, -1))
sketch8.addConstraint(Sketcher.Constraint("Parallel", 8, 9))
sketch8.addConstraint(Sketcher.Constraint("Parallel", 13, 15))
sketch8.addConstraint(Sketcher.Constraint("Parallel", 20, 21))
sketch8.addConstraint(Sketcher.Constraint("Parallel", 26, 27))
sketch8.addConstraint(Sketcher.Constraint("Horizontal", 8, 2, 10, 2))
sketch8.addConstraint(Sketcher.Constraint("Horizontal", 9, 2, 12, 2))
sketch8.addConstraint(Sketcher.Constraint("Horizontal", 11, 2, 13, 2))
sketch8.addConstraint(Sketcher.Constraint("Horizontal", 7, 2, 15, 2))
sketch8.addConstraint(Sketcher.Constraint("Horizontal", 20, 2, 22, 2))
sketch8.addConstraint(Sketcher.Constraint("Horizontal", 21, 2, 24, 2))
sketch8.addConstraint(Sketcher.Constraint("Horizontal", 23, 2, 26, 2))
sketch8.addConstraint(Sketcher.Constraint("Horizontal", 26, 2, 28, 2))
sketch8.addConstraint(Sketcher.Constraint("Vertical", 13, 2, 16, 2))
sketch8.addConstraint(Sketcher.Constraint("Vertical", 8, 2, 18, 2))
sketch8.addConstraint(Sketcher.Constraint("Vertical", 25, 2, 27, 2))
sketch8.addConstraint(Sketcher.Constraint("DistanceX", 2, 1, 2, 2, Q("260 mm")))
sketch8.addConstraint(Sketcher.Constraint("DistanceY", 1, 1, 1, 2, Q("186.9 mm")))
sketch8.addConstraint(Sketcher.Constraint("DistanceX", 0, 2, -1, 1, Q("15 mm")))
sketch8.addConstraint(Sketcher.Constraint("DistanceX", 7, 1, 7, 2, Q("69.334611 mm")))
sketch8.addConstraint(Sketcher.Constraint("DistanceX", 11, 2, 11, 1, Q("63.729258 mm")))
sketch8.addConstraint(Sketcher.Constraint("DistanceX", 16, 1, 16, 2, Q("80.58855 mm")))
sketch8.addConstraint(Sketcher.Constraint("DistanceY", 10, 2, 10, 1, Q("7.728362 mm")))
sketch8.addConstraint(Sketcher.Constraint("DistanceY", 17, 2, 17, 1, Q("5.91495 mm")))
sketch8.addConstraint(Sketcher.Constraint("DistanceY", 18, 1, 18, 2, Q("33.139611 mm")))
sketch8.addConstraint(Sketcher.Constraint("DistanceY", 22, 2, 22, 1, Q("32.399031 mm")))
sketch8.addConstraint(Sketcher.Constraint("DistanceX", -1, 1, 12, 2, Q("118.492602 mm")))
sketch8.addConstraint(Sketcher.Constraint("DistanceX", 11, 2, 12, 2, Q("67.911699 mm")))
sketch8.addConstraint(Sketcher.Constraint("DistanceX", 19, 2, 15, 2, Q("10.742501 mm")))
sketch8.addConstraint(Sketcher.Constraint("Distance", 26, Q("75.027109 mm")))
sketch8.addConstraint(Sketcher.Constraint("DistanceX", 0, 2, 0, 1, Q("27.420995 mm")))
sketch8.addConstraint(Sketcher.Constraint("DistanceX", 19, 1, 19, 2, Q("114.861803 mm")))
sketch8.addConstraint(Sketcher.Constraint("DistanceX", 29, 2, 29, 1, Q("57.071963 mm")))
sketch8.addConstraint(Sketcher.Constraint("DistanceY", 3, 2, 3, 1, Q("22.553404 mm")))
sketch8.addConstraint(Sketcher.Constraint("DistanceY", 8, 2, -1, 1, Q("161.03831 mm")))
sketch8.addConstraint(Sketcher.Constraint("DistanceY", 18, 2, -1, 1, Q("45.651162 mm")))
sketch8.addConstraint(Sketcher.Constraint("DistanceX", -1, 1, 21, 2, Q("164.557478 mm")))
sketch8.addConstraint(Sketcher.Constraint("DistanceX", -1, 1, 25, 2, Q("237.593239 mm")))
pocket6 = body.newObject("PartDesign::Pocket", "Pocket005")
pocket6.Profile = sketch8
pocket6.Length = 10
pocket6.Reversed = True

doc.recompute()
